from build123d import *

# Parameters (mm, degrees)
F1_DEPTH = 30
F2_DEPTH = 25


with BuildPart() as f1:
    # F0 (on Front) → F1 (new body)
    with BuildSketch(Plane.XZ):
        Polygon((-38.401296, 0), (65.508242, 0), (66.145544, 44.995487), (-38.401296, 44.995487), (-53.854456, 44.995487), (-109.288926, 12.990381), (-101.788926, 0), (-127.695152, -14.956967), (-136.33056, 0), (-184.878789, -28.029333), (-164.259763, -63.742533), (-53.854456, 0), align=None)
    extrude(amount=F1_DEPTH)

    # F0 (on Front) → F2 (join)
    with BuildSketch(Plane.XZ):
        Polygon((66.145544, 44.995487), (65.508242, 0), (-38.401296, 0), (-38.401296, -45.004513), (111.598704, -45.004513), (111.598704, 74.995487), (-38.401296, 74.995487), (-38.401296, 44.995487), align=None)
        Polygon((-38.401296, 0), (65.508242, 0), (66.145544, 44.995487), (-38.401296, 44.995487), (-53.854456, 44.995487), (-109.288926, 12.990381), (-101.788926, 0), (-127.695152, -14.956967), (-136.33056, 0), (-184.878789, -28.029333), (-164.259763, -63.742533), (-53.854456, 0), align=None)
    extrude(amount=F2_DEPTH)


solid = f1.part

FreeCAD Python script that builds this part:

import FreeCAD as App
import Part
import Sketcher

V = App.Vector
Q = App.Units.Quantity


def add_polygon(sketch, points):
    """Adds a closed chain of lines whose ends are joined by coincident constraints."""
    first, n = sketch.GeometryCount, len(points)
    for a, b in zip(points, points[1:] + points[:1]):
        sketch.addGeometry(Part.LineSegment(App.Vector(*a, 0), App.Vector(*b, 0)), False)
    for i in range(n):
        sketch.addConstraint(Sketcher.Constraint("Coincident", first + i, 2, first + (i + 1) % n, 1))

doc = App.newDocument("Part")
params = doc.addObject("Spreadsheet::Sheet", "Params")
for row, (alias, value) in enumerate([
    ("sketch1_width", "120 mm"),
    ("sketch1_length", "45 mm"),
    ("sketch1_length2", "15 mm"),
    ("pad1_length", "30 mm"),
    ("sketch2_width", "150 mm"),
    ("sketch2_height", "120 mm"),
    ("sketch2_height2", "30 mm"),
    ("sketch2_length", "15 mm"),
    ("pad2_length", "25 mm"),
], start=1):
    params.set(f"A{row}", alias)
    params.set(f"B{row}", "=" + value)
    params.setAlias(f"B{row}", alias)

body = doc.addObject("PartDesign::Body", "Body")

sketch1 = body.newObject("Sketcher::SketchObject", "Sketch")
sketch1.AttachmentSupport = (doc.getObject("XZ_Plane"), [""])
sketch1.MapMode = "FlatFace"
add_polygon(sketch1, [(66, 0), (66, 45), (-54, 45), (-109, 13), (-102, 0), (-128, -15), (-136, 0), (-185, -28), (-164, -64), (-54, 0)])
sketch1.addConstraint(Sketcher.Constraint("Horizontal", 1))
sketch1.addConstraint(Sketcher.Constraint("Horizontal", 9))
sketch1.addConstraint(Sketcher.Constraint("PointOnObject", 3, 2, -1))
sketch1.addConstraint(Sketcher.Constraint("PointOnObject", 5, 2, -1))
sketch1.addConstraint(Sketcher.Constraint("PointOnObject", 8, 2, -1))
sketch1.addConstraint(Sketcher.Constraint("Perpendicular", 2, 3))
sketch1.addConstraint(Sketcher.Constraint("Perpendicular", 3, 4))
sketch1.addConstraint(Sketcher.Constraint("Perpendicular", 4, 5))
sketch1.addConstraint(Sketcher.Constraint("Perpendicular", 5, 6))
sketch1.addConstraint(Sketcher.Constraint("Perpendicular", 6, 7))
sketch1.addConstraint(Sketcher.Constraint("Perpendicular", 7, 8))
sketch1.addConstraint(Sketcher.Constraint("Vertical", 1, 2, 8, 2))
sketch1.addConstraint(Sketcher.Constraint("DistanceX", 1, 2, 1, 1, Q("120 mm")))
sketch1.addConstraint(Sketcher.Constraint("Angle", 2, Q("-150 deg")))
sketch1.addConstraint(Sketcher.Constraint("Distance", 0, Q("45 mm")))
sketch1.addConstraint(Sketcher.Constraint("Distance", 3, Q("15 mm")))
sketch1.addConstraint(Sketcher.Constraint("DistanceY", 7, 2, 6, 2, Q("35.7132 mm")))
sketch1.addConstraint(Sketcher.Constraint("DistanceX", 9, 1, 9, 2, Q("119.362698 mm")))
sketch1.addConstraint(Sketcher.Constraint("DistanceX", 4, 2, -1, 1, Q("127.695152 mm")))
sketch1.addConstraint(Sketcher.Constraint("DistanceX", 6, 2, -1, 1, Q("184.878789 mm")))
sketch1.setExpression("Constraints[22]", "Params.sketch1_width")
sketch1.setExpression("Constraints[24]", "Params.sketch1_length")
sketch1.setExpression("Constraints[25]", "Params.sketch1_length2")
pad1 = body.newObject("PartDesign::Pad", "Pad")
pad1.Profile = sketch1
pad1.setExpression("Length", "Params.pad1_length")

sketch2 = body.newObject("Sketcher::SketchObject", "Sketch001")
sketch2.AttachmentSupport = (doc.getObject("XZ_Plane"), [""])
sketch2.MapMode = "FlatFace"
add_polygon(sketch2, [(-38, 0), (-38, -45), (112, -45), (112, 75), (-38, 75), (-38, 45), (-54, 45), (-109, 13), (-102, 0), (-128, -15), (-136, 0), (-185, -28), (-164, -64), (-54, 0)])
sketch2.addConstraint(Sketcher.Constraint("Vertical", 0))
sketch2.addConstraint(Sketcher.Constraint("Horizontal", 1))
sketch2.addConstraint(Sketcher.Constraint("Vertical", 2))
sketch2.addConstraint(Sketcher.Constraint("Horizontal", 3))
sketch2.addConstraint(Sketcher.Constraint("Vertical", 4))
sketch2.addConstraint(Sketcher.Constraint("Horizontal", 5))
sketch2.addConstraint(Sketcher.Constraint("Horizontal", 13))
sketch2.addConstraint(Sketcher.Constraint("PointOnObject", 7, 2, -1))
sketch2.addConstraint(Sketcher.Constraint("PointOnObject", 9, 2, -1))
sketch2.addConstraint(Sketcher.Constraint("PointOnObject", 12, 2, -1))
sketch2.addConstraint(Sketcher.Constraint("Perpendicular", 6, 7))
sketch2.addConstraint(Sketcher.Constraint("Perpendicular", 7, 8))
sketch2.addConstraint(Sketcher.Constraint("Perpendicular", 8, 9))
sketch2.addConstraint(Sketcher.Constraint("Perpendicular", 9, 10))
sketch2.addConstraint(Sketcher.Constraint("Perpendicular", 10, 11))
sketch2.addConstraint(Sketcher.Constraint("Perpendicular", 11, 12))
sketch2.addConstraint(Sketcher.Constraint("Vertical", 0, 2, 3, 2))
sketch2.addConstraint(Sketcher.Constraint("Vertical", 5, 2, 12, 2))
sketch2.addConstraint(Sketcher.Constraint("DistanceX", 1, 1, 1, 2, Q("150 mm")))
sketch2.addConstraint(Sketcher.Constraint("DistanceY", 2, 1, 2, 2, Q("120 mm")))
sketch2.addConstraint(Sketcher.Constraint("DistanceY", 4, 2, 4, 1, Q("30 mm")))
sketch2.addConstraint(Sketcher.Constraint("Angle", 6, Q("-150 deg")))
sketch2.addConstraint(Sketcher.Constraint("Distance", 7, Q("15 mm")))
sketch2.addConstraint(Sketcher.Constraint("DistanceX", 5, 2, 5, 1, Q("15.45316 mm")))
sketch2.addConstraint(Sketcher.Constraint("DistanceY", 11, 2, 10, 2, Q("35.7132 mm")))
sketch2.addConstraint(Sketcher.Constraint("DistanceY", 0, 2, 0, 1, Q("45.004513 mm")))
sketch2.addConstraint(Sketcher.Constraint("DistanceX", 8, 2, -1, 1, Q("127.695152 mm")))
sketch2.addConstraint(Sketcher.Constraint("DistanceX", 10, 2, -1, 1, Q("184.878789 mm")))
sketch2.setExpression("Constraints[32]", "Params.sketch2_width")
sketch2.setExpression("Constraints[33]", "Params.sketch2_height")
sketch2.setExpression("Constraints[34]", "Params.sketch2_height2")
sketch2.setExpression("Constraints[36]", "Params.sketch2_length")
pad2 = body.newObject("PartDesign::Pad", "Pad001")
pad2.Profile = sketch2
pad2.setExpression("Length", "Params.pad2_length")

doc.recompute()
